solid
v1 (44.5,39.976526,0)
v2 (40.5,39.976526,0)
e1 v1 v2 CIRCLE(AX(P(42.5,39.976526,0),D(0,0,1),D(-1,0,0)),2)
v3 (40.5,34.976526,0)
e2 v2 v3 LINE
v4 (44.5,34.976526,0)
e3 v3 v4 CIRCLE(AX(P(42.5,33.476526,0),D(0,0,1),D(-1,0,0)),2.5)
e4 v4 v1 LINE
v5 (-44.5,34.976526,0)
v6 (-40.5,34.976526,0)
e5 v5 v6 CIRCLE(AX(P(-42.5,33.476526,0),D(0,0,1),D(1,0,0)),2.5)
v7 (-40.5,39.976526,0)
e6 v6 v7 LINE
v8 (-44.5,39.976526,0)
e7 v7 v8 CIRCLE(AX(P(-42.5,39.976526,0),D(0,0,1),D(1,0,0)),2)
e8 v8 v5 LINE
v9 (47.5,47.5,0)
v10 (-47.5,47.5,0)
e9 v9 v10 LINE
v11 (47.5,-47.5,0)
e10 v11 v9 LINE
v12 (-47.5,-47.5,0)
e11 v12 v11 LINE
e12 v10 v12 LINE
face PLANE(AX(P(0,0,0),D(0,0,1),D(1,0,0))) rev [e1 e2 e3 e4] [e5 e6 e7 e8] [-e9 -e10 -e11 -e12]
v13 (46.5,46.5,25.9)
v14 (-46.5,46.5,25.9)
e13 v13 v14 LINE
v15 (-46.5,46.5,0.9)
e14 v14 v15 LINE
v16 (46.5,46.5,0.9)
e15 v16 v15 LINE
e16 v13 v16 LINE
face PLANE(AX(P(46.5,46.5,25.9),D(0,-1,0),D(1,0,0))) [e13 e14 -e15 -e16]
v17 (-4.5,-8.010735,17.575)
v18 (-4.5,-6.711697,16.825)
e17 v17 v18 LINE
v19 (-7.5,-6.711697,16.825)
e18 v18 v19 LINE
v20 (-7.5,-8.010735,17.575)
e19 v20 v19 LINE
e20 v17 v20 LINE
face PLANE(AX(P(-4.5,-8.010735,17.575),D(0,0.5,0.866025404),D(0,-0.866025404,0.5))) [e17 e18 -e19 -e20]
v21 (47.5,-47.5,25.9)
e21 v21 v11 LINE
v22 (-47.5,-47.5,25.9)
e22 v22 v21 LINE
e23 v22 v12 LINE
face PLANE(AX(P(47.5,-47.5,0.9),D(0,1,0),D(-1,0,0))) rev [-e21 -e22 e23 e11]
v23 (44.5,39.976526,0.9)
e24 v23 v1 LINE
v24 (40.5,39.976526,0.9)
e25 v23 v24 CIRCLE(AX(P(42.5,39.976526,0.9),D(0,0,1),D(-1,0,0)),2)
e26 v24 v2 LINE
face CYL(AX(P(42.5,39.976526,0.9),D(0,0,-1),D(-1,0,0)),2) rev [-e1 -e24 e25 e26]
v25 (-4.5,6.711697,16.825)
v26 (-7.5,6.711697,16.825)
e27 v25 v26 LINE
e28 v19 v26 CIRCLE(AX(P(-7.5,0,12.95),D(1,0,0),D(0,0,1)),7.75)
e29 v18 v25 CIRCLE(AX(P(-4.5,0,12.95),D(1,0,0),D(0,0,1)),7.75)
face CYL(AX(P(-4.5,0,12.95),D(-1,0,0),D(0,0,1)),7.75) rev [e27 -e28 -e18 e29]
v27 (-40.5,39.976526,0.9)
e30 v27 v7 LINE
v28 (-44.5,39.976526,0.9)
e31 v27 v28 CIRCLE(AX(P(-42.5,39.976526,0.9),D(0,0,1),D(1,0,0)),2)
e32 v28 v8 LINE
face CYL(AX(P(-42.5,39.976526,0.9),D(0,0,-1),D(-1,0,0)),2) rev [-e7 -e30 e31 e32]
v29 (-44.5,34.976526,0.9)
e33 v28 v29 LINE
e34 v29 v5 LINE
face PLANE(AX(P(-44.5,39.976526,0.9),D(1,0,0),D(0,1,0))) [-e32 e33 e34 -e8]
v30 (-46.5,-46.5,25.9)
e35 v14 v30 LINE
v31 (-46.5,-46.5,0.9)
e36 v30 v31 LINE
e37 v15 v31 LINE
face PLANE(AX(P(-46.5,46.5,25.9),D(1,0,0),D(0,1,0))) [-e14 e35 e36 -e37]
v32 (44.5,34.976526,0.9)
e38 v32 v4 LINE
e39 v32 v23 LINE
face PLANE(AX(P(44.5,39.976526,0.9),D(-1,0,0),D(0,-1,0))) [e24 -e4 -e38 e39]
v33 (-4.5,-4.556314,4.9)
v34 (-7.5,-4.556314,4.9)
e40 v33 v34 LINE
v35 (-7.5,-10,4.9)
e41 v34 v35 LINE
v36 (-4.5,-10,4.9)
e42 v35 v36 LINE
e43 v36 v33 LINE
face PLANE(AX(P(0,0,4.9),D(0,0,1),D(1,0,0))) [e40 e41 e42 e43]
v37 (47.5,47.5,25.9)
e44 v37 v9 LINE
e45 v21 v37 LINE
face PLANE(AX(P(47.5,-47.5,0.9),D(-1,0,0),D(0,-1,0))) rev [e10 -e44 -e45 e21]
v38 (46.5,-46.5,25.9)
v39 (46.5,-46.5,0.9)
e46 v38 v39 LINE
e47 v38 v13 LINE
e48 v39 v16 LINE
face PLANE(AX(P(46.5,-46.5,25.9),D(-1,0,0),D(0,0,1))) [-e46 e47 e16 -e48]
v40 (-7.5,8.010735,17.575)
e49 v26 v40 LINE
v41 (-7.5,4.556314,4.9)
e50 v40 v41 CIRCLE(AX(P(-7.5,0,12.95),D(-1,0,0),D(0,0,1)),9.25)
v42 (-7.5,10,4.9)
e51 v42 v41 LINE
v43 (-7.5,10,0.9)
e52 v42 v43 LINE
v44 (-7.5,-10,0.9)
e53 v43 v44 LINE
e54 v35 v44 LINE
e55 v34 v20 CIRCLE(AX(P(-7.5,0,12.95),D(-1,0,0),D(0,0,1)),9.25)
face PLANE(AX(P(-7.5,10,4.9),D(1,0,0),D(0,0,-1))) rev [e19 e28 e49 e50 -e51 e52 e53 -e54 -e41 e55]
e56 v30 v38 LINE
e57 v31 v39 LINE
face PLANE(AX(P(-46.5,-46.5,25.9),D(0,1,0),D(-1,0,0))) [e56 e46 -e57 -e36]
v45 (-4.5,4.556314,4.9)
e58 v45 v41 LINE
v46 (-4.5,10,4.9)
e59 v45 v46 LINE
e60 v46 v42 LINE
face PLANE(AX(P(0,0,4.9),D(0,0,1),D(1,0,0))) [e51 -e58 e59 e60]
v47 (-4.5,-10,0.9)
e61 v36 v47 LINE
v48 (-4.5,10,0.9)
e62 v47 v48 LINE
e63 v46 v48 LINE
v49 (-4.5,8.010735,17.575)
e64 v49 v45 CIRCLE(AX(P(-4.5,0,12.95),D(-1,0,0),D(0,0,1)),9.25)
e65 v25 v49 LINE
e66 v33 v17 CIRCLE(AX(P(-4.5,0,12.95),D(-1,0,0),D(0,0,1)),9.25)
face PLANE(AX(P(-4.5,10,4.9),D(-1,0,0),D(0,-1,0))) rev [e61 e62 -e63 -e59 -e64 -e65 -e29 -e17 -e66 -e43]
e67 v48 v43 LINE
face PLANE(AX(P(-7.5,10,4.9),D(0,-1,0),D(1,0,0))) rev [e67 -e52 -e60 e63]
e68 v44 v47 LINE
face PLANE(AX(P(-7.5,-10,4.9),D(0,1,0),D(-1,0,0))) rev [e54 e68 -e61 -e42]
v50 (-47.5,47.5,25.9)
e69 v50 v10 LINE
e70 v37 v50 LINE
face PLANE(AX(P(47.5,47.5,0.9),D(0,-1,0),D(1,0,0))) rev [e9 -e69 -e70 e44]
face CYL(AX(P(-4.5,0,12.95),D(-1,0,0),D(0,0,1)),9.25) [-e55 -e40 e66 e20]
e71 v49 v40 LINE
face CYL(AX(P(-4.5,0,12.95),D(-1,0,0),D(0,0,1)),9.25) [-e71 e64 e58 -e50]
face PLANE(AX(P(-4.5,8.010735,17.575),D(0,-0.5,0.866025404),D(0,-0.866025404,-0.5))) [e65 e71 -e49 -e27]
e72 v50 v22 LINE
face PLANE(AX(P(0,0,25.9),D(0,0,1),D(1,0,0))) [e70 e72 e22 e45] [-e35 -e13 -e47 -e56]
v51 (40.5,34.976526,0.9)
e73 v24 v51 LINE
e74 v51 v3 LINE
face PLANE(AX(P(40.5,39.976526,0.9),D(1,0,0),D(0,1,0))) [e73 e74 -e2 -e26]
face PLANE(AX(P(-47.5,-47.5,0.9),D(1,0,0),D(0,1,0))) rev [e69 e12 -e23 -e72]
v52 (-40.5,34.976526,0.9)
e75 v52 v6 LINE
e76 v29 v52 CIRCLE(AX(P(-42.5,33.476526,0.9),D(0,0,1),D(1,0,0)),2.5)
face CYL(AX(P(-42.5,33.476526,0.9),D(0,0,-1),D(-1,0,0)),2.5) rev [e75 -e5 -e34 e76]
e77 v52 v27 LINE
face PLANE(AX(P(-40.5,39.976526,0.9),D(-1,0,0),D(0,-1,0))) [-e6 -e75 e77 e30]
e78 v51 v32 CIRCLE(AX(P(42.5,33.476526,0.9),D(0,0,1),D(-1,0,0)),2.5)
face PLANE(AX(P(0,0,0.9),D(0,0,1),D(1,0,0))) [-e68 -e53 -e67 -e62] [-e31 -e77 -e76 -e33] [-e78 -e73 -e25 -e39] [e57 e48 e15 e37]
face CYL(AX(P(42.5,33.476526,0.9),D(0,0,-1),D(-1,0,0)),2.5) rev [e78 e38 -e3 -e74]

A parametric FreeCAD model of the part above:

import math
import FreeCAD as App
import Part
import Sketcher
from FreeCAD import Vector
Q = App.Units.Quantity

doc = App.newDocument("Part")
body = doc.addObject("PartDesign::Body", "Body")

sketch1 = body.newObject("Sketcher::SketchObject", "Sketch")
sketch1.AttachmentSupport = (doc.getObject("XY_Plane"), [""])
sketch1.MapMode = "FlatFace"
sketch1.addGeometry(Part.LineSegment(Vector(-47.5, 47.5, 0), Vector(-47.5, -47.5, 0)), False)
sketch1.addGeometry(Part.LineSegment(Vector(-47.5, -47.5, 0), Vector(47.5, -47.5, 0)), False)
sketch1.addGeometry(Part.LineSegment(Vector(47.5, -47.5, 0), Vector(47.5, 47.5, 0)), False)
sketch1.addGeometry(Part.LineSegment(Vector(47.5, 47.5, 0), Vector(-47.5, 47.5, 0)), False)
sketch1.addGeometry(Part.LineSegment(Vector(-44.5, 35, 0), Vector(-44.5, 40, 0)), False)
sketch1.addGeometry(Part.ArcOfCircle(Part.Circle(Vector(-42.5, 40, 0), Vector(0, 0, 1), 2), math.radians(0), math.radians(180)), False)
sketch1.addGeometry(Part.LineSegment(Vector(-40.5, 40, 0), Vector(-40.5, 35, 0)), False)
sketch1.addGeometry(Part.ArcOfCircle(Part.Circle(Vector(-42.5, 33.5, 0), Vector(0, 0, 1), 2.5), math.radians(143), math.radians(397)), False)
sketch1.addGeometry(Part.LineSegment(Vector(40.5, 35, 0), Vector(40.5, 40, 0)), False)
sketch1.addGeometry(Part.ArcOfCircle(Part.Circle(Vector(42.5, 40, 0), Vector(0, 0, 1), 2), math.radians(0), math.radians(180)), False)
sketch1.addGeometry(Part.LineSegment(Vector(44.5, 40, 0), Vector(44.5, 35, 0)), False)
sketch1.addGeometry(Part.ArcOfCircle(Part.Circle(Vector(42.5, 33.5, 0), Vector(0, 0, 1), 2.5), math.radians(143), math.radians(397)), False)
sketch1.addConstraint(Sketcher.Constraint("Coincident", 0, 2, 1, 1))
sketch1.addConstraint(Sketcher.Constraint("Coincident", 1, 2, 2, 1))
sketch1.addConstraint(Sketcher.Constraint("Coincident", 2, 2, 3, 1))
sketch1.addConstraint(Sketcher.Constraint("Coincident", 3, 2, 0, 1))
sketch1.addConstraint(Sketcher.Constraint("Tangent", 4, 2, 5, 2))
sketch1.addConstraint(Sketcher.Constraint("Tangent", 5, 1, 6, 1))
sketch1.addConstraint(Sketcher.Constraint("Coincident", 6, 2, 7, 2))
sketch1.addConstraint(Sketcher.Constraint("Coincident", 7, 1, 4, 1))
sketch1.addConstraint(Sketcher.Constraint("Tangent", 8, 2, 9, 2))
sketch1.addConstraint(Sketcher.Constraint("Tangent", 9, 1, 10, 1))
sketch1.addConstraint(Sketcher.Constraint("Coincident", 10, 2, 11, 2))
sketch1.addConstraint(Sketcher.Constraint("Coincident", 11, 1, 8, 1))
sketch1.addConstraint(Sketcher.Constraint("Vertical", 0))
sketch1.addConstraint(Sketcher.Constraint("Horizontal", 1))
sketch1.addConstraint(Sketcher.Constraint("Vertical", 2))
sketch1.addConstraint(Sketcher.Constraint("Horizontal", 3))
sketch1.addConstraint(Sketcher.Constraint("Vertical", 4))
sketch1.addConstraint(Sketcher.Constraint("Vertical", 6))
sketch1.addConstraint(Sketcher.Constraint("Vertical", 8))
sketch1.addConstraint(Sketcher.Constraint("Vertical", 10))
sketch1.addConstraint(Sketcher.Constraint("Equal", 5, 9))
sketch1.addConstraint(Sketcher.Constraint("Equal", 7, 11))
sketch1.addConstraint(Sketcher.Constraint("Symmetric", 0, 2, 2, 2, -1, 1))
sketch1.addConstraint(Sketcher.Constraint("Symmetric", 5, 3, 9, 3, -2))
sketch1.addConstraint(Sketcher.Constraint("Symmetric", 7, 3, 11, 3, -2))
sketch1.addConstraint(Sketcher.Constraint("Horizontal", 6, 2, 7, 1))
sketch1.addConstraint(Sketcher.Constraint("Equal", 3, 0))
sketch1.addConstraint(Sketcher.Constraint("Radius", 5, 2.0))
sketch1.addConstraint(Sketcher.Constraint("Radius", 7, 2.5))
sketch1.addConstraint(Sketcher.Constraint("DistanceX", 1, 1, 1, 2, 95.0))
sketch1.addConstraint(Sketcher.Constraint("DistanceY", 4, 1, 4, 2, 5.0))
sketch1.addConstraint(Sketcher.Constraint("DistanceX", 5, 3, 9, 3, 85.0))
sketch1.addConstraint(Sketcher.Constraint("DistanceY", -1, 1, 5, 3, 39.976526))
pad1 = body.newObject("PartDesign::Pad", "Pad")
pad1.Profile = sketch1
pad1.Length = 0.9

sketch2 = body.newObject("Sketcher::SketchObject", "Sketch001")
sketch2.AttachmentSupport = (doc.getObject("XY_Plane"), [""])
sketch2.MapMode = "FlatFace"
sketch2.AttachmentOffset = App.Placement(Vector(0, 0, 0.9), App.Rotation())
sketch2.addGeometry(Part.LineSegment(Vector(-48, 48, 0), Vector(-48, -48, 0)), False)
sketch2.addGeometry(Part.LineSegment(Vector(-48, -48, 0), Vector(48, -48, 0)), False)
sketch2.addGeometry(Part.LineSegment(Vector(48, -48, 0), Vector(48, 48, 0)), False)
sketch2.addGeometry(Part.LineSegment(Vector(48, 48, 0), Vector(-48, 48, 0)), False)
sketch2.addGeometry(Part.LineSegment(Vector(46, -46, 0), Vector(-46, -46, 0)), False)
sketch2.addGeometry(Part.LineSegment(Vector(-46, -46, 0), Vector(-46, 46, 0)), False)
sketch2.addGeometry(Part.LineSegment(Vector(-46, 46, 0), Vector(46, 46, 0)), False)
sketch2.addGeometry(Part.LineSegment(Vector(46, 46, 0), Vector(46, -46, 0)), False)
sketch2.addConstraint(Sketcher.Constraint("Coincident", 0, 2, 1, 1))
sketch2.addConstraint(Sketcher.Constraint("Coincident", 1, 2, 2, 1))
sketch2.addConstraint(Sketcher.Constraint("Coincident", 2, 2, 3, 1))
sketch2.addConstraint(Sketcher.Constraint("Coincident", 3, 2, 0, 1))
sketch2.addConstraint(Sketcher.Constraint("Coincident", 4, 2, 5, 1))
sketch2.addConstraint(Sketcher.Constraint("Coincident", 5, 2, 6, 1))
sketch2.addConstraint(Sketcher.Constraint("Coincident", 6, 2, 7, 1))
sketch2.addConstraint(Sketcher.Constraint("Coincident", 7, 2, 4, 1))
sketch2.addConstraint(Sketcher.Constraint("Vertical", 0))
sketch2.addConstraint(Sketcher.Constraint("Horizontal", 1))
sketch2.addConstraint(Sketcher.Constraint("Vertical", 2))
sketch2.addConstraint(Sketcher.Constraint("Horizontal", 3))
sketch2.addConstraint(Sketcher.Constraint("Horizontal", 4))
sketch2.addConstraint(Sketcher.Constraint("Vertical", 5))
sketch2.addConstraint(Sketcher.Constraint("Horizontal", 6))
sketch2.addConstraint(Sketcher.Constraint("Vertical", 7))
sketch2.addConstraint(Sketcher.Constraint("Symmetric", 0, 2, 2, 2, -1, 1))
sketch2.addConstraint(Sketcher.Constraint("Symmetric", 4, 2, 6, 2, -1, 1))
sketch2.addConstraint(Sketcher.Constraint("Equal", 3, 0))
sketch2.addConstraint(Sketcher.Constraint("Equal", 6, 5))
sketch2.addConstraint(Sketcher.Constraint("DistanceX", 1, 1, 1, 2, 95.0))
sketch2.addConstraint(Sketcher.Constraint("DistanceX", 4, 2, 4, 1, 93.0))
pad2 = body.newObject("PartDesign::Pad", "Pad001")
pad2.Profile = sketch2
pad2.Length = 25

sketch3 = body.newObject("Sketcher::SketchObject", "Sketch002")
sketch3.AttachmentSupport = (doc.getObject("XY_Plane"), [""])
sketch3.MapMode = "FlatFace"
sketch3.AttachmentOffset = App.Placement(Vector(0, 0, 0.9), App.Rotation())
sketch3.addGeometry(Part.LineSegment(Vector(-7.5, 10, 0), Vector(-7.5, -10, 0)), False)
sketch3.addGeometry(Part.LineSegment(Vector(-7.5, -10, 0), Vector(-4.5, -10, 0)), False)
sketch3.addGeometry(Part.LineSegment(Vector(-4.5, -10, 0), Vector(-4.5, 10, 0)), False)
sketch3.addGeometry(Part.LineSegment(Vector(-4.5, 10, 0), Vector(-7.5, 10, 0)), False)
sketch3.addConstraint(Sketcher.Constraint("Coincident", 0, 2, 1, 1))
sketch3.addConstraint(Sketcher.Constraint("Coincident", 1, 2, 2, 1))
sketch3.addConstraint(Sketcher.Constraint("Coincident", 2, 2, 3, 1))
sketch3.addConstraint(Sketcher.Constraint("Coincident", 3, 2, 0, 1))
sketch3.addConstraint(Sketcher.Constraint("Vertical", 0))
sketch3.addConstraint(Sketcher.Constraint("Horizontal", 1))
sketch3.addConstraint(Sketcher.Constraint("Vertical", 2))
sketch3.addConstraint(Sketcher.Constraint("Horizontal", 3))
sketch3.addConstraint(Sketcher.Constraint("DistanceX", 1, 1, 1, 2, 3.0))
sketch3.addConstraint(Sketcher.Constraint("DistanceY", 0, 2, 0, 1, 20.0))
sketch3.addConstraint(Sketcher.Constraint("DistanceY", 0, 2, -1, 1, 10.0))
sketch3.addConstraint(Sketcher.Constraint("DistanceX", 0, 2, -1, 1, 7.5))
pad3 = body.newObject("PartDesign::Pad", "Pad002")
pad3.Profile = sketch3
pad3.Length = 4

sketch4 = body.newObject("Sketcher::SketchObject", "Sketch003")
sketch4.AttachmentSupport = (doc.getObject("YZ_Plane"), [""])
sketch4.MapMode = "FlatFace"
sketch4.AttachmentOffset = App.Placement(Vector(0, 0, -4.5), App.Rotation())
sketch4.addGeometry(Part.LineSegment(Vector(6.7, 16.8, 0), Vector(8, 17.6, 0)), False)
sketch4.addGeometry(Part.ArcOfCircle(Part.Circle(Vector(0, 12.9, 0), Vector(0, 0, 1), 9.3), math.radians(-60), math.radians(30)), False)
sketch4.addGeometry(Part.LineSegment(Vector(4.6, 4.9, 0), Vector(-4.6, 4.9, 0)), False)
sketch4.addGeometry(Part.ArcOfCircle(Part.Circle(Vector(0, 12.9, 0), Vector(0, 0, 1), 9.3), math.radians(150), math.radians(240)), False)
sketch4.addGeometry(Part.LineSegment(Vector(-8, 17.6, 0), Vector(-6.7, 16.8, 0)), False)
sketch4.addGeometry(Part.ArcOfCircle(Part.Circle(Vector(0, 12.9, 0), Vector(0, 0, 1), 7.8), math.radians(150), math.radians(390)), False)
sketch4.addConstraint(Sketcher.Constraint("Coincident", 0, 2, 1, 2))
sketch4.addConstraint(Sketcher.Constraint("Coincident", 1, 1, 2, 1))
sketch4.addConstraint(Sketcher.Constraint("Coincident", 2, 2, 3, 2))
sketch4.addConstraint(Sketcher.Constraint("Coincident", 3, 1, 4, 1))
sketch4.addConstraint(Sketcher.Constraint("Coincident", 4, 2, 5, 1))
sketch4.addConstraint(Sketcher.Constraint("Coincident", 5, 2, 0, 1))
sketch4.addConstraint(Sketcher.Constraint("Horizontal", 2))
sketch4.addConstraint(Sketcher.Constraint("Coincident", 3, 3, 1, 3))
sketch4.addConstraint(Sketcher.Constraint("Coincident", 5, 3, 1, 3))
sketch4.addConstraint(Sketcher.Constraint("Equal", 1, 3))
sketch4.addConstraint(Sketcher.Constraint("Symmetric", 0, 2, 3, 1, -2))
sketch4.addConstraint(Sketcher.Constraint("Horizontal", 4, 2, 5, 2))
sketch4.addConstraint(Sketcher.Constraint("Angle", 0, Q("30 deg")))
sketch4.addConstraint(Sketcher.Constraint("Radius", 1, 9.25))
sketch4.addConstraint(Sketcher.Constraint("Radius", 5, 7.75))
sketch4.addConstraint(Sketcher.Constraint("DistanceY", -1, 1, 1, 1, 4.9))
sketch4.addConstraint(Sketcher.Constraint("DistanceY", -1, 1, 1, 3, 12.95))
sketch4.addConstraint(Sketcher.Constraint("DistanceY", -1, 1, 0, 2, 17.575))
pad4 = body.newObject("PartDesign::Pad", "Pad003")
pad4.Profile = sketch4
pad4.Length = 3
pad4.Reversed = True

doc.recompute()
